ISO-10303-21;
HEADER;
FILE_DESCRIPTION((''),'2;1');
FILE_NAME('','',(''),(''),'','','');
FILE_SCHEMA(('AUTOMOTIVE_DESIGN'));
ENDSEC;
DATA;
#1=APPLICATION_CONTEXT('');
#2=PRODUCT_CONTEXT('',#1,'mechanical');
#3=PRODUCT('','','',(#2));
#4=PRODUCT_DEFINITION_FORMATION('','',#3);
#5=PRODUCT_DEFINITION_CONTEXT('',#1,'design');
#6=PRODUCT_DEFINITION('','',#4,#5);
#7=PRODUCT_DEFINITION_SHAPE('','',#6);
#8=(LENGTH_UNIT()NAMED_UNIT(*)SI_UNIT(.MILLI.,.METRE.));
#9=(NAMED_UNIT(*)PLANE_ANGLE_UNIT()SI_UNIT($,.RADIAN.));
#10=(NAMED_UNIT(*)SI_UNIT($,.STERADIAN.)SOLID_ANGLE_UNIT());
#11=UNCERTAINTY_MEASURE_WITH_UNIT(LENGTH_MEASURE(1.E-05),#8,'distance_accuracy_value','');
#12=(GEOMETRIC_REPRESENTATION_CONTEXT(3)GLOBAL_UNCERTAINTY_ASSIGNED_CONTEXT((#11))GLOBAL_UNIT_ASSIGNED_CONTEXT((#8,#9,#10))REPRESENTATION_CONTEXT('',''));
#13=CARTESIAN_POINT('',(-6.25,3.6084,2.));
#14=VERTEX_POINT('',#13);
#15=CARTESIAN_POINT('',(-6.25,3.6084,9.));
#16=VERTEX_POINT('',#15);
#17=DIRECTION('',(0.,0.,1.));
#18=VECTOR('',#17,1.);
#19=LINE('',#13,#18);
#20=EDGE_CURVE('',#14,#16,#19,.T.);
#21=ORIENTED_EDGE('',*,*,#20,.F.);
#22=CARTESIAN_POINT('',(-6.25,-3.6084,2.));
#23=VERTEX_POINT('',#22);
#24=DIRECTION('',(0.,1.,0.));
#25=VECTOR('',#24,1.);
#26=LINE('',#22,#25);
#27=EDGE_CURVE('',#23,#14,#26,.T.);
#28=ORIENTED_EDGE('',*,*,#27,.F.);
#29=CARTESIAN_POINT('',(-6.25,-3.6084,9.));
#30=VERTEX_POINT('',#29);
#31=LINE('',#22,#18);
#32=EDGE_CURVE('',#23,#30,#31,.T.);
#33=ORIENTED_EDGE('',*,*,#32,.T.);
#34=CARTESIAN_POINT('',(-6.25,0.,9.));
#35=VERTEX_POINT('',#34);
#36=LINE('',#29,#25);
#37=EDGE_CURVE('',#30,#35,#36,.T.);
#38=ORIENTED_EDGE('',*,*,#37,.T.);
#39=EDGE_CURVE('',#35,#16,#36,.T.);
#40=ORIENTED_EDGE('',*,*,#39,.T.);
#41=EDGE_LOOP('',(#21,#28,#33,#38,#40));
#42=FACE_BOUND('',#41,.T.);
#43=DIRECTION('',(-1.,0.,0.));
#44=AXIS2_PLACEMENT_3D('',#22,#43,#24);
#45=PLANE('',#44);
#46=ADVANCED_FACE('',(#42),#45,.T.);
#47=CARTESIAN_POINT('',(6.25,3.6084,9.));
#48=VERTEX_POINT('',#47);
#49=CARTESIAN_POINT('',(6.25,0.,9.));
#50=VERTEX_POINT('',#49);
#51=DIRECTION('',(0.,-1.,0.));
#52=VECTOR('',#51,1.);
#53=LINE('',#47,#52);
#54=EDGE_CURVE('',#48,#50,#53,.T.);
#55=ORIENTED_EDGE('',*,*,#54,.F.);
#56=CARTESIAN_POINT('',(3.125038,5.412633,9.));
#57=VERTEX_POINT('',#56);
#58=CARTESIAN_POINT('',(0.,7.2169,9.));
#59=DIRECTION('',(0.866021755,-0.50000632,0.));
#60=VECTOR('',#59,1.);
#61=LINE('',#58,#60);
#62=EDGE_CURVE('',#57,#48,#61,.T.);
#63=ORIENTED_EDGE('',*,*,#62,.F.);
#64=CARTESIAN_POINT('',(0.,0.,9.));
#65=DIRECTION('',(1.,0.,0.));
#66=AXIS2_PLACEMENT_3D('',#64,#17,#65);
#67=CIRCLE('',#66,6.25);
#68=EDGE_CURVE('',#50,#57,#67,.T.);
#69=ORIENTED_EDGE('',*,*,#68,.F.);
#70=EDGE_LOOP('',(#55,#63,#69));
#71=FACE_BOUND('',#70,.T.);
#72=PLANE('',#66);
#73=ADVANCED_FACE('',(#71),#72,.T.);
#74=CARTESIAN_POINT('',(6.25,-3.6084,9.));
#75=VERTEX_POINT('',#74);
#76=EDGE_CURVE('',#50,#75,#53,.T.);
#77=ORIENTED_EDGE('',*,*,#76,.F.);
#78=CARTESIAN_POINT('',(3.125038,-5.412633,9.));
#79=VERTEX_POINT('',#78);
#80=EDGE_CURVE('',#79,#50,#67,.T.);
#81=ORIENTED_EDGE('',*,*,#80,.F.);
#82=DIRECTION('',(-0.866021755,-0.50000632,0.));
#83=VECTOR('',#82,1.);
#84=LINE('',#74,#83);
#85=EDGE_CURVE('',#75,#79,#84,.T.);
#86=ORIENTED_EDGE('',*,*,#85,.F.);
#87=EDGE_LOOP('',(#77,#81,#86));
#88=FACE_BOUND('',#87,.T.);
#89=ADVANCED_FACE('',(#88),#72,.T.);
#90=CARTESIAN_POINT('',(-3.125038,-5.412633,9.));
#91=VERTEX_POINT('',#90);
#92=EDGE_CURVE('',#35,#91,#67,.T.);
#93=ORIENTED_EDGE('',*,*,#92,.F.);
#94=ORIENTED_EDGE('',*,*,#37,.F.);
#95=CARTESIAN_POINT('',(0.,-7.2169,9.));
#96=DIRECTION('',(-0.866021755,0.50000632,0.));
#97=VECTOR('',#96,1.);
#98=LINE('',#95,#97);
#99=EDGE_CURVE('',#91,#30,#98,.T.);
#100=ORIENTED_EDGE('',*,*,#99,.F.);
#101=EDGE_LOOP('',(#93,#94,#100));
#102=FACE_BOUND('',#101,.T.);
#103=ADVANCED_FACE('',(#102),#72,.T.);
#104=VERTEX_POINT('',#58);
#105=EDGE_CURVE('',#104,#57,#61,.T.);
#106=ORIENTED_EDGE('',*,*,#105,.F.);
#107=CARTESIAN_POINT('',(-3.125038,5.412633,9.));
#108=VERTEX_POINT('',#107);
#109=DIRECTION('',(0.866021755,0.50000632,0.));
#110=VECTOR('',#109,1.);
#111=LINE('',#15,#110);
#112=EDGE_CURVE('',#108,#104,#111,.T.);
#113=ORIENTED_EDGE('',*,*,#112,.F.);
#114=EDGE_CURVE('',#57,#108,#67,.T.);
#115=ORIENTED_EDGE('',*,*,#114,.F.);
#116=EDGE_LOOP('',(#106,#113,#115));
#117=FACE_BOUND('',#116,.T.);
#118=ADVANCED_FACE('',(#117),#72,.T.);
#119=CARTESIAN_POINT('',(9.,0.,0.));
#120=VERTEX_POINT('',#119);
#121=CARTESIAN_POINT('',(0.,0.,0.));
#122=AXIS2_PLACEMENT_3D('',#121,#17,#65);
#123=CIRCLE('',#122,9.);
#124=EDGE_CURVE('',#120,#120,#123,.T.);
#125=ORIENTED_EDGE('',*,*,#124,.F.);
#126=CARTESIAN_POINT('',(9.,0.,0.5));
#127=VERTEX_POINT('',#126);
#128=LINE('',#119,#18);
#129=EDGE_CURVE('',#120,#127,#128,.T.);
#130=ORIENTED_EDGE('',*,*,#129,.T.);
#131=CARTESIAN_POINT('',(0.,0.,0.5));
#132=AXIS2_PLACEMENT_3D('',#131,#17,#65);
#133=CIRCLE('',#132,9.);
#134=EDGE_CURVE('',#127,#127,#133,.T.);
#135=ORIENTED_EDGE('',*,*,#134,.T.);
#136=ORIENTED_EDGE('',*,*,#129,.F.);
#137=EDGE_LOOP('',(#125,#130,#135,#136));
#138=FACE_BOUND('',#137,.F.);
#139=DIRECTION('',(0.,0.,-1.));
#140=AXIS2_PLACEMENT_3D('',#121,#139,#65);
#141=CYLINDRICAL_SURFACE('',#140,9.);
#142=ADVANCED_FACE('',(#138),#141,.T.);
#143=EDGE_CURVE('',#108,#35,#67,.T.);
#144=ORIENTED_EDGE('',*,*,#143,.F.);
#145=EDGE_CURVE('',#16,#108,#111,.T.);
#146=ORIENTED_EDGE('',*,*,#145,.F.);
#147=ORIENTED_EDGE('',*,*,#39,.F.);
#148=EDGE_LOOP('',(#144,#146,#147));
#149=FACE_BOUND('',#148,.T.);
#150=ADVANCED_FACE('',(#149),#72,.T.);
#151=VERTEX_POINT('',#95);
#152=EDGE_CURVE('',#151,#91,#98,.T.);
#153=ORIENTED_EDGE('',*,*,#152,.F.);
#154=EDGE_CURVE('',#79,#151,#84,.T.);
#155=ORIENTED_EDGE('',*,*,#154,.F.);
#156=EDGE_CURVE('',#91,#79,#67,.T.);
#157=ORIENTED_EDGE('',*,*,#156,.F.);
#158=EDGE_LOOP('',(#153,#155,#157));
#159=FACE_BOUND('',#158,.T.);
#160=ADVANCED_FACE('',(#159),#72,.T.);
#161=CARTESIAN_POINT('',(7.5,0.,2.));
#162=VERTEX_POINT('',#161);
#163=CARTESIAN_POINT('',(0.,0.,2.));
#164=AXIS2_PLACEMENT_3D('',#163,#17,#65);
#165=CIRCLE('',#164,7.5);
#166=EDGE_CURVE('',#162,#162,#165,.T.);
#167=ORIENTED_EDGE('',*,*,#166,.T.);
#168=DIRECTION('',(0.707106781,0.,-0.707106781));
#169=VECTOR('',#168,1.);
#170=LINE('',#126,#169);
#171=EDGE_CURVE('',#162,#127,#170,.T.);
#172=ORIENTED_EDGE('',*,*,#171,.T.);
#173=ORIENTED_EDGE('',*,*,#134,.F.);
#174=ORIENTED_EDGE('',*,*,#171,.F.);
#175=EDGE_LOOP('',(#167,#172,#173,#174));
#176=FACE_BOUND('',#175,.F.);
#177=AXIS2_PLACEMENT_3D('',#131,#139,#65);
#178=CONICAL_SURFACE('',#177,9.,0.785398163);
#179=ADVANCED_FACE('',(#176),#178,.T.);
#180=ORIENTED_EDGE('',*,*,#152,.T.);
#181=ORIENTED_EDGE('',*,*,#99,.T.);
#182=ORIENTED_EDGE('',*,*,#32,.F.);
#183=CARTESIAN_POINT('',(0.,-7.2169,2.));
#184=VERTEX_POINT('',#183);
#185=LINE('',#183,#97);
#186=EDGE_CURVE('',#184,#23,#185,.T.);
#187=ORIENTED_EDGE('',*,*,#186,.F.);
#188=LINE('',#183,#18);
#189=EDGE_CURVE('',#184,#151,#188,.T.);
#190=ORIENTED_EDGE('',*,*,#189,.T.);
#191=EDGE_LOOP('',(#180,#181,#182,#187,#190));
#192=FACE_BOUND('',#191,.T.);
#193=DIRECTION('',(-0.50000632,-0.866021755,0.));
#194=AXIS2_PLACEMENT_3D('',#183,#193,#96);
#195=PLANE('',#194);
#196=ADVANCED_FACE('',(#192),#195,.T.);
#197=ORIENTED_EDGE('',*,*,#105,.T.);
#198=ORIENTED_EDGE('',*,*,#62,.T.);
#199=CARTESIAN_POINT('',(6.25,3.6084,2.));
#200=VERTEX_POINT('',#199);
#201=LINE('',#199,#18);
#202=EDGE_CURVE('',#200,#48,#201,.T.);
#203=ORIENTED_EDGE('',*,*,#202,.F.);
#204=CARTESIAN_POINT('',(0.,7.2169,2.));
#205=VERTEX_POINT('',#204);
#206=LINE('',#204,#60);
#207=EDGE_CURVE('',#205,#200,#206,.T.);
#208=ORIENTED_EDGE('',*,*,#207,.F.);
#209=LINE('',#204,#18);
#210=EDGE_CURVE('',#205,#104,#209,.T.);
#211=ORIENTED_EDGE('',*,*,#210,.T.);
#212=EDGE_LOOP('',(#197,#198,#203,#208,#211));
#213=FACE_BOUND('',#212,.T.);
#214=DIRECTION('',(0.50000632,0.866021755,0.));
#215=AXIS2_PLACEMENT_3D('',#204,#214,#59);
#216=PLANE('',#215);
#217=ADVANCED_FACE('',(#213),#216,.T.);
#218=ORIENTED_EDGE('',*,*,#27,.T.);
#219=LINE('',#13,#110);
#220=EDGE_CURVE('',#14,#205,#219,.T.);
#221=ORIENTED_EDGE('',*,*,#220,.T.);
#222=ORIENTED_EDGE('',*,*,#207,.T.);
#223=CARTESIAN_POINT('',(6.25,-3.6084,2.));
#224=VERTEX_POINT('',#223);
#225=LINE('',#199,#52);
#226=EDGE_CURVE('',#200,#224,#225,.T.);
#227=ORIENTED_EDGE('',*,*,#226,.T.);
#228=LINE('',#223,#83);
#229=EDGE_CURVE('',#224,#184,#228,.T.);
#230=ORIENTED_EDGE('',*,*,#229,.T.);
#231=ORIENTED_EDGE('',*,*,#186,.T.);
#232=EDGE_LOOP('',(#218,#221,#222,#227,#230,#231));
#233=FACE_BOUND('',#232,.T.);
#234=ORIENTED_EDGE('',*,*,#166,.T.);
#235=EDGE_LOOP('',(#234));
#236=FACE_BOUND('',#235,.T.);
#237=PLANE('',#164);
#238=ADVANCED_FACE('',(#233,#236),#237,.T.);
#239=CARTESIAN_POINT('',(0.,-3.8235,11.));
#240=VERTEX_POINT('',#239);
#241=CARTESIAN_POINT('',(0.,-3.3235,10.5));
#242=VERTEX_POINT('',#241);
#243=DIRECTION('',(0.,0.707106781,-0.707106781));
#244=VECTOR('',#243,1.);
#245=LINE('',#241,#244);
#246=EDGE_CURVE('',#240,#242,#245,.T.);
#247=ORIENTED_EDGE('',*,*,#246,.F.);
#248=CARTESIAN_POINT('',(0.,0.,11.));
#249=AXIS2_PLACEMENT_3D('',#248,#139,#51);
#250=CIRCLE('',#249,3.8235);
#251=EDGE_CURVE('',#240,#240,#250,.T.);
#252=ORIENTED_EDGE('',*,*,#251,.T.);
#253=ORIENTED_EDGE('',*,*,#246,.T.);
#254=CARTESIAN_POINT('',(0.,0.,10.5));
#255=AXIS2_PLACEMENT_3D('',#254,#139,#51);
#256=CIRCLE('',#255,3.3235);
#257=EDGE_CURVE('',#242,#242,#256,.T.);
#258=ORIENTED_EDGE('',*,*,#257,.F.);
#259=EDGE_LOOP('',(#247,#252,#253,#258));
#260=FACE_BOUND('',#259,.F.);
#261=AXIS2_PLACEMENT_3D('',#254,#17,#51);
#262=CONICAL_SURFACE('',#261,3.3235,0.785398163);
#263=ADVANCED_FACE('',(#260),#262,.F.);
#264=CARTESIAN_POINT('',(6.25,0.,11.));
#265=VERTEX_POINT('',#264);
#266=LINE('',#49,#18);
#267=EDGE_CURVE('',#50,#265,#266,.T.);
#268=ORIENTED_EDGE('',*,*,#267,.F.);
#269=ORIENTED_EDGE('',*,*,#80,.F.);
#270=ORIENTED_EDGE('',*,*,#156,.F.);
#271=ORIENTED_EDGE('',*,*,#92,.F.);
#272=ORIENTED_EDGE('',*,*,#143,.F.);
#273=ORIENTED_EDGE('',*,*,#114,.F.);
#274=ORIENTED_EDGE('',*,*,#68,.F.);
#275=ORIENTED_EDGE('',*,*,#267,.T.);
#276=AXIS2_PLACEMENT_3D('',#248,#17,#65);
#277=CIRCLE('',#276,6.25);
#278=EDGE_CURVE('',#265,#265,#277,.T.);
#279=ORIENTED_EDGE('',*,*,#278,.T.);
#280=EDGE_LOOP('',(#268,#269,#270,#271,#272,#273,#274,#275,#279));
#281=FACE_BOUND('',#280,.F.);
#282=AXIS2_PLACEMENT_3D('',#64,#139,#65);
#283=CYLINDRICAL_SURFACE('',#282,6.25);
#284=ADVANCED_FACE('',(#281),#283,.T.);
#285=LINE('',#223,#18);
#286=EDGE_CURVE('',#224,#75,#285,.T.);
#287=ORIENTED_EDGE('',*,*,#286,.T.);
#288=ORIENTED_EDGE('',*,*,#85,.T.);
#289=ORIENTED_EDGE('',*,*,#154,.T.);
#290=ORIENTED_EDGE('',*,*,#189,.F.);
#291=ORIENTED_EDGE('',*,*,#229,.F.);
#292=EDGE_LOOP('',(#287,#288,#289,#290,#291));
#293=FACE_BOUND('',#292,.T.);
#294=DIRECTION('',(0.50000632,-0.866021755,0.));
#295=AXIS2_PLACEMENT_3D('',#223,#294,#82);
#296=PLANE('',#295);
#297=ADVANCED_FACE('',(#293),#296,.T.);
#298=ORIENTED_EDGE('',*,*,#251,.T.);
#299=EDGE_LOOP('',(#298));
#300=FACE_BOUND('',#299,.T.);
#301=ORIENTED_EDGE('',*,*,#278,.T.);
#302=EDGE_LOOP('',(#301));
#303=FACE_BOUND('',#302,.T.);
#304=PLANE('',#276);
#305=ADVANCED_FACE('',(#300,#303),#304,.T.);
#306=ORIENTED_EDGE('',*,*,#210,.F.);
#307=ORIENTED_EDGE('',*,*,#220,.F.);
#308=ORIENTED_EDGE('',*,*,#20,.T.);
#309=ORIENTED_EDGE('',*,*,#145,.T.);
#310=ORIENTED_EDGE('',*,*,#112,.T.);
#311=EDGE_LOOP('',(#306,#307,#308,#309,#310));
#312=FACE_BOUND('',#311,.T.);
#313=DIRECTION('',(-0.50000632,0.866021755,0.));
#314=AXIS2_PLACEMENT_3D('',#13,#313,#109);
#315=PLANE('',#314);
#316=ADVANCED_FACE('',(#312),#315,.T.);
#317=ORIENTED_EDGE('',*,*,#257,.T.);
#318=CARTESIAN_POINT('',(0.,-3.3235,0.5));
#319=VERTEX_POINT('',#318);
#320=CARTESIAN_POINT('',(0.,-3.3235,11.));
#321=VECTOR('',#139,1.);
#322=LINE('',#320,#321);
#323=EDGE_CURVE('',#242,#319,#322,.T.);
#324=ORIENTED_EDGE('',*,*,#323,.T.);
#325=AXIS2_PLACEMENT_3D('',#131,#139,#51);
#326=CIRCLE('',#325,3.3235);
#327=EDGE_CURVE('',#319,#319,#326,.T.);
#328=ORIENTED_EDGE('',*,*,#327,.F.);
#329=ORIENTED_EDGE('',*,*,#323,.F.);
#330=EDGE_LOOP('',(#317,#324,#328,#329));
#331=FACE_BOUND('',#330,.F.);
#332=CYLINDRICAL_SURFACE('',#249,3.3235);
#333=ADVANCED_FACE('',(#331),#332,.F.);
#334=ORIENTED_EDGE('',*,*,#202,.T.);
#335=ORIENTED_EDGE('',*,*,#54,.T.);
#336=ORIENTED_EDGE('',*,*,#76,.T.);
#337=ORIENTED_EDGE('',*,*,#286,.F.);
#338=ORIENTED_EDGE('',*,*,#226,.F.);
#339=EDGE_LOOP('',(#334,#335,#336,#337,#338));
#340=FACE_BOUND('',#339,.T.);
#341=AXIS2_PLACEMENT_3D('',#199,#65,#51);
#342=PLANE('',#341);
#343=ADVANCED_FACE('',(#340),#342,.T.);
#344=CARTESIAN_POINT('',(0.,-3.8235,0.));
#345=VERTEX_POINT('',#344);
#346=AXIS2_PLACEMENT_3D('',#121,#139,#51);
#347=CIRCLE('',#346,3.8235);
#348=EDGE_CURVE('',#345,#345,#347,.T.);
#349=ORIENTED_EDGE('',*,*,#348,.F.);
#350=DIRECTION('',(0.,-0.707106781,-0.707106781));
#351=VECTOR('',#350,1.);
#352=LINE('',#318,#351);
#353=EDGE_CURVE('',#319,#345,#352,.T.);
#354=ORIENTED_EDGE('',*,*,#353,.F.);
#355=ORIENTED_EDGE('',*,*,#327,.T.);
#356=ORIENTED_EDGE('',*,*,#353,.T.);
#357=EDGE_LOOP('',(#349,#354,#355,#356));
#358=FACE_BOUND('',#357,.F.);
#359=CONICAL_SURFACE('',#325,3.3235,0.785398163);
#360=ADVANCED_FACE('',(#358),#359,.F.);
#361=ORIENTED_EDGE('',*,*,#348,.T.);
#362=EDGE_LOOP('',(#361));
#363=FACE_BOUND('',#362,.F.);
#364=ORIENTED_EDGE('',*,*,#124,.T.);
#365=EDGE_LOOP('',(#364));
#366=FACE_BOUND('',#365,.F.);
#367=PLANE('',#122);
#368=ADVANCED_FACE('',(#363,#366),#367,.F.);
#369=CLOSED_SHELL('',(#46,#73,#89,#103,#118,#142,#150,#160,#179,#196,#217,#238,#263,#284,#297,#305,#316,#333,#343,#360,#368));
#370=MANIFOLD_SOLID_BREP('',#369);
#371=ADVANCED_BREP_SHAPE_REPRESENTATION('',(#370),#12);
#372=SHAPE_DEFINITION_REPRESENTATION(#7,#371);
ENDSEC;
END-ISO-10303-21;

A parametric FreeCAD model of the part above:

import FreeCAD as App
import Part
import Sketcher
from FreeCAD import Vector
Q = App.Units.Quantity


def edges_at(feature, points):
    """Names of the edges that pass closest to the given points."""
    edges = feature.Shape.Edges
    near = lambda p: min(range(len(edges)), key=lambda i: edges[i].distToShape(Part.Vertex(*p))[0])
    return sorted({f"Edge{near(p) + 1}" for p in points})


def add_polygon(sketch, points):
    """Adds a closed chain of lines whose ends are joined by coincident constraints."""
    first, n = sketch.GeometryCount, len(points)
    for a, b in zip(points, points[1:] + points[:1]):
        sketch.addGeometry(Part.LineSegment(App.Vector(*a, 0), App.Vector(*b, 0)), False)
    for i in range(n):
        sketch.addConstraint(Sketcher.Constraint("Coincident", first + i, 2, first + (i + 1) % n, 1))

doc = App.newDocument("Part")
body = doc.addObject("PartDesign::Body", "Body")

# Sketch on XY plane
sketch1 = body.newObject("Sketcher::SketchObject", "Sketch")
sketch1.AttachmentSupport = (doc.getObject("XY_Plane"), [""])
sketch1.MapMode = "FlatFace"
sketch1.addGeometry(Part.Circle(Vector(0, 0, 0), Vector(0, 0, 1), 9), False)
sketch1.addConstraint([
    Sketcher.Constraint("Coincident", 0, 3, -1, 1),
    Sketcher.Constraint("Diameter", 0, Q("18 mm")),
])
pad1 = body.newObject("PartDesign::Pad", "Pad")
pad1.Profile = sketch1
pad1.Length = 2

# Sketch on XY plane
sketch2 = body.newObject("Sketcher::SketchObject", "Sketch001")
sketch2.AttachmentSupport = (doc.getObject("XY_Plane"), [""])
sketch2.MapMode = "FlatFace"
sketch2.AttachmentOffset = App.Placement(Vector(0, 0, 2), App.Rotation())
add_polygon(sketch2, [(6, 4), (0, 7), (-6, 4), (-6, -4), (0, -7), (6, -4)])  # lines 0-5
sketch2.addConstraint([
    Sketcher.Constraint("Vertical", 2),
    Sketcher.Constraint("Vertical", 5),
    Sketcher.Constraint("Symmetric", 0, 2, 3, 2, -1, 1),
    Sketcher.Constraint("Symmetric", 1, 2, 4, 2, -1, 1),
    Sketcher.Constraint("PointOnObject", 0, 2, -2),
    Sketcher.Constraint("Parallel", 0, 3),
    Sketcher.Constraint("Horizontal", 2, 2, 4, 2),
    Sketcher.Constraint("DistanceX", 2, 2, 4, 2, Q("12.5 mm")),
    Sketcher.Constraint("Angle", 0, Q("149.9996 deg")),
    Sketcher.Constraint("DistanceY", 2, 2, 2, 1, Q("7.2168 mm")),
])
pad2 = body.newObject("PartDesign::Pad", "Pad001")
pad2.Profile = sketch2
pad2.Length = 7

# Sketch on XY plane
sketch3 = body.newObject("Sketcher::SketchObject", "Sketch002")
sketch3.AttachmentSupport = (doc.getObject("XY_Plane"), [""])
sketch3.MapMode = "FlatFace"
sketch3.AttachmentOffset = App.Placement(Vector(0, 0, 9), App.Rotation())
sketch3.addGeometry(Part.Circle(Vector(0, 0, 0), Vector(0, 0, 1), 6), False)
sketch3.addConstraint([
    Sketcher.Constraint("Coincident", 0, 3, -1, 1),
    Sketcher.Constraint("Diameter", 0, Q("12.5 mm")),
])
pad3 = body.newObject("PartDesign::Pad", "Pad002")
pad3.Profile = sketch3
pad3.Length = 2

# Sketch on XY plane
sketch4 = body.newObject("Sketcher::SketchObject", "Sketch003")
sketch4.AttachmentSupport = (doc.getObject("XY_Plane"), [""])
sketch4.MapMode = "FlatFace"
sketch4.AttachmentOffset = App.Placement(Vector(0, 0, 11), App.Rotation())
sketch4.addGeometry(Part.Circle(Vector(0, 0, 0), Vector(0, 0, 1), 3.3), False)
sketch4.addConstraint([
    Sketcher.Constraint("Coincident", 0, 3, -1, 1),
    Sketcher.Constraint("Diameter", 0, Q("6.647 mm")),
])
doc.recompute()
hole = body.newObject("PartDesign::Hole", "Hole")
hole.Profile = sketch4
hole.ThreadType = "None"
hole.Diameter = 6.647
hole.DepthType = "ThroughAll"
doc.recompute()

chamfer = body.newObject("PartDesign::Chamfer", "Chamfer")
chamfer.Base = (hole, edges_at(hole, [(0, 3.324, 11), (0, 3.324, 0)]))
chamfer.Size = 0.5
doc.recompute()

chamfer2 = body.newObject("PartDesign::Chamfer", "Chamfer001")
chamfer2.Base = (chamfer, edges_at(chamfer, [(-9, 0, 2)]))
chamfer2.Size = 1.5

doc.recompute()
